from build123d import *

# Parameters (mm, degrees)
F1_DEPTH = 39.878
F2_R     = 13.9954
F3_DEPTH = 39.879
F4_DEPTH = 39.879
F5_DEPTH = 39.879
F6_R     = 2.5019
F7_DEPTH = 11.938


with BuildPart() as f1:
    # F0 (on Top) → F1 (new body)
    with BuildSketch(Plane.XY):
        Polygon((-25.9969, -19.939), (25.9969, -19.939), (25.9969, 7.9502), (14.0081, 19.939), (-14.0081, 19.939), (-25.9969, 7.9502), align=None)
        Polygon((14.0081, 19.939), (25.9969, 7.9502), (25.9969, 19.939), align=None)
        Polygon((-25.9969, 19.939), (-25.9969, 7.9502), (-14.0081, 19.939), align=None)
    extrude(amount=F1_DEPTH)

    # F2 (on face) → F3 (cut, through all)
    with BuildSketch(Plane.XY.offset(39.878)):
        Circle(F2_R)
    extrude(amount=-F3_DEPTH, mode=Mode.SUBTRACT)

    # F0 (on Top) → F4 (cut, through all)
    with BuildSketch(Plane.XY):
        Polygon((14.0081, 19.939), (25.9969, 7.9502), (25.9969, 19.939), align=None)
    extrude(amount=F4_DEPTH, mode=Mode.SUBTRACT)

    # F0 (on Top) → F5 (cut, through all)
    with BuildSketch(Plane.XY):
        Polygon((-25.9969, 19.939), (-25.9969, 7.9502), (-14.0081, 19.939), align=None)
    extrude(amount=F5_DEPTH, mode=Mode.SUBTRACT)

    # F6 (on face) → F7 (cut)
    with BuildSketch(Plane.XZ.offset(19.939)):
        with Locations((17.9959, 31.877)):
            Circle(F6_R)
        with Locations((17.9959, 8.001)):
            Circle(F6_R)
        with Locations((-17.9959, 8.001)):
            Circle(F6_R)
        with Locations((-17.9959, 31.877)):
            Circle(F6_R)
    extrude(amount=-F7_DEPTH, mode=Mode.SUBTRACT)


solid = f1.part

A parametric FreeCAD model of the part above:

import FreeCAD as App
import Part
import Sketcher

V = App.Vector
Q = App.Units.Quantity

doc = App.newDocument("Part")
body = doc.addObject("PartDesign::Body", "Body")

# Sketch on XY plane
sketch1 = body.newObject("Sketcher::SketchObject", "Sketch")
sketch1.AttachmentSupport = (doc.getObject("XY_Plane"), [""])
sketch1.MapMode = "FlatFace"
sketch1.addGeometry([
    Part.LineSegment(V(-25.9969, -19.939, 0), V(25.9969, -19.939, 0)),
    Part.LineSegment(V(25.9969, -19.939, 0), V(25.9969, 19.939, 0)),
    Part.LineSegment(V(25.9969, 19.939, 0), V(-25.9969, 19.939, 0)),
    Part.LineSegment(V(-25.9969, 19.939, 0), V(-25.9969, -19.939, 0)),
], False)
sketch1.addConstraint([
    Sketcher.Constraint("Coincident", 0, 2, 1, 1),
    Sketcher.Constraint("Coincident", 1, 2, 2, 1),
    Sketcher.Constraint("Coincident", 2, 2, 3, 1),
    Sketcher.Constraint("Coincident", 3, 2, 0, 1),
    Sketcher.Constraint("Horizontal", 0),
    Sketcher.Constraint("Vertical", 1),
    Sketcher.Constraint("Horizontal", 2),
    Sketcher.Constraint("Vertical", 3),
    Sketcher.Constraint("Symmetric", 0, 2, 2, 2, -1, 1),
    Sketcher.Constraint("DistanceY", 1, 1, 1, 2, Q("1.57 in")),
    Sketcher.Constraint("DistanceX", 0, 1, 0, 2, Q("2.047 in")),
])
pad1 = body.newObject("PartDesign::Pad", "Pad")
pad1.Profile = sketch1
pad1.Length = Q("1.57 in")

# Sketch on XY plane
sketch2 = body.newObject("Sketcher::SketchObject", "Sketch001")
sketch2.AttachmentSupport = (doc.getObject("XY_Plane"), [""])
sketch2.MapMode = "FlatFace"
sketch2.AttachmentOffset = App.Placement(V(0, 0, 1.57 * 25.4), App.Rotation())
sketch2.addGeometry(Part.Circle(V(0, 0, 0), V(0, 0, 1), 13.9954), False)
sketch2.addConstraint([
    Sketcher.Constraint("Coincident", 0, 3, -1, 1),
    Sketcher.Constraint("Diameter", 0, Q("1.102 in")),
])
pocket1 = body.newObject("PartDesign::Pocket", "Pocket")
pocket1.Profile = sketch2
pocket1.Type = "ThroughAll"

# Sketch on XY plane
sketch3 = body.newObject("Sketcher::SketchObject", "Sketch002")
sketch3.AttachmentSupport = (doc.getObject("XY_Plane"), [""])
sketch3.MapMode = "FlatFace"
sketch3.addGeometry([
    Part.LineSegment(V(14.0081, 19.939, 0), V(25.9969, 7.9502, 0)),
    Part.LineSegment(V(25.9969, 7.9502, 0), V(25.9969, 19.939, 0)),
    Part.LineSegment(V(25.9969, 19.939, 0), V(14.0081, 19.939, 0)),
], False)
sketch3.addConstraint([
    Sketcher.Constraint("Coincident", 0, 2, 1, 1),
    Sketcher.Constraint("Coincident", 1, 2, 2, 1),
    Sketcher.Constraint("Coincident", 2, 2, 0, 1),
    Sketcher.Constraint("Vertical", 1),
    Sketcher.Constraint("Horizontal", 2),
    Sketcher.Constraint("Equal", 2, 1),
    Sketcher.Constraint("DistanceX", 2, 2, 2, 1, Q("0.472 in")),
    Sketcher.Constraint("DistanceY", -1, 1, 0, 2, Q("0.313 in")),
    Sketcher.Constraint("DistanceX", -1, 1, 0, 2, Q("1.0235 in")),
])
pocket2 = body.newObject("PartDesign::Pocket", "Pocket001")
pocket2.Profile = sketch3
pocket2.Type = "ThroughAll"
pocket2.Reversed = True

# Sketch on XY plane
sketch4 = body.newObject("Sketcher::SketchObject", "Sketch003")
sketch4.AttachmentSupport = (doc.getObject("XY_Plane"), [""])
sketch4.MapMode = "FlatFace"
sketch4.addGeometry([
    Part.LineSegment(V(-25.9969, 19.939, 0), V(-25.9969, 7.9502, 0)),
    Part.LineSegment(V(-25.9969, 7.9502, 0), V(-14.0081, 19.939, 0)),
    Part.LineSegment(V(-14.0081, 19.939, 0), V(-25.9969, 19.939, 0)),
], False)
sketch4.addConstraint([
    Sketcher.Constraint("Coincident", 0, 2, 1, 1),
    Sketcher.Constraint("Coincident", 1, 2, 2, 1),
    Sketcher.Constraint("Coincident", 2, 2, 0, 1),
    Sketcher.Constraint("Vertical", 0),
    Sketcher.Constraint("Horizontal", 2),
    Sketcher.Constraint("Equal", 2, 0),
    Sketcher.Constraint("DistanceX", 2, 2, 2, 1, Q("0.472 in")),
    Sketcher.Constraint("DistanceY", -1, 1, 0, 2, Q("0.313 in")),
    Sketcher.Constraint("DistanceX", 0, 2, -1, 1, Q("1.0235 in")),
])
pocket3 = body.newObject("PartDesign::Pocket", "Pocket002")
pocket3.Profile = sketch4
pocket3.Type = "ThroughAll"
pocket3.Reversed = True

# Sketch on XZ plane
sketch5 = body.newObject("Sketcher::SketchObject", "Sketch004")
sketch5.AttachmentSupport = (doc.getObject("XZ_Plane"), [""])
sketch5.MapMode = "FlatFace"
sketch5.AttachmentOffset = App.Placement(V(0, 0, 0.785 * 25.4), App.Rotation())
sketch5.addGeometry([
    Part.Circle(V(17.9959, 31.877, 0), V(0, 0, 1), 2.5019),
    Part.Circle(V(17.9959, 8.001, 0), V(0, 0, 1), 2.5019),
    Part.Circle(V(-17.9959, 8.001, 0), V(0, 0, 1), 2.5019),
    Part.Circle(V(-17.9959, 31.877, 0), V(0, 0, 1), 2.5019),
], False)
sketch5.addConstraint([
    Sketcher.Constraint("Equal", 0, 1),
    Sketcher.Constraint("Equal", 1, 2),
    Sketcher.Constraint("Equal", 2, 3),
    Sketcher.Constraint("Symmetric", 1, 3, 2, 3, -2),
    Sketcher.Constraint("Symmetric", 0, 3, 3, 3, -2),
    Sketcher.Constraint("Vertical", 0, 3, 1, 3),
    Sketcher.Constraint("Diameter", 0, Q("0.197 in")),
    Sketcher.Constraint("DistanceY", 1, 3, 0, 3, Q("0.94 in")),
    Sketcher.Constraint("DistanceY", -1, 1, 0, 3, Q("1.255 in")),
    Sketcher.Constraint("DistanceX", 2, 3, 1, 3, Q("1.417 in")),
])
pocket4 = body.newObject("PartDesign::Pocket", "Pocket003")
pocket4.Profile = sketch5
pocket4.Length = Q("0.47 in")

doc.recompute()
